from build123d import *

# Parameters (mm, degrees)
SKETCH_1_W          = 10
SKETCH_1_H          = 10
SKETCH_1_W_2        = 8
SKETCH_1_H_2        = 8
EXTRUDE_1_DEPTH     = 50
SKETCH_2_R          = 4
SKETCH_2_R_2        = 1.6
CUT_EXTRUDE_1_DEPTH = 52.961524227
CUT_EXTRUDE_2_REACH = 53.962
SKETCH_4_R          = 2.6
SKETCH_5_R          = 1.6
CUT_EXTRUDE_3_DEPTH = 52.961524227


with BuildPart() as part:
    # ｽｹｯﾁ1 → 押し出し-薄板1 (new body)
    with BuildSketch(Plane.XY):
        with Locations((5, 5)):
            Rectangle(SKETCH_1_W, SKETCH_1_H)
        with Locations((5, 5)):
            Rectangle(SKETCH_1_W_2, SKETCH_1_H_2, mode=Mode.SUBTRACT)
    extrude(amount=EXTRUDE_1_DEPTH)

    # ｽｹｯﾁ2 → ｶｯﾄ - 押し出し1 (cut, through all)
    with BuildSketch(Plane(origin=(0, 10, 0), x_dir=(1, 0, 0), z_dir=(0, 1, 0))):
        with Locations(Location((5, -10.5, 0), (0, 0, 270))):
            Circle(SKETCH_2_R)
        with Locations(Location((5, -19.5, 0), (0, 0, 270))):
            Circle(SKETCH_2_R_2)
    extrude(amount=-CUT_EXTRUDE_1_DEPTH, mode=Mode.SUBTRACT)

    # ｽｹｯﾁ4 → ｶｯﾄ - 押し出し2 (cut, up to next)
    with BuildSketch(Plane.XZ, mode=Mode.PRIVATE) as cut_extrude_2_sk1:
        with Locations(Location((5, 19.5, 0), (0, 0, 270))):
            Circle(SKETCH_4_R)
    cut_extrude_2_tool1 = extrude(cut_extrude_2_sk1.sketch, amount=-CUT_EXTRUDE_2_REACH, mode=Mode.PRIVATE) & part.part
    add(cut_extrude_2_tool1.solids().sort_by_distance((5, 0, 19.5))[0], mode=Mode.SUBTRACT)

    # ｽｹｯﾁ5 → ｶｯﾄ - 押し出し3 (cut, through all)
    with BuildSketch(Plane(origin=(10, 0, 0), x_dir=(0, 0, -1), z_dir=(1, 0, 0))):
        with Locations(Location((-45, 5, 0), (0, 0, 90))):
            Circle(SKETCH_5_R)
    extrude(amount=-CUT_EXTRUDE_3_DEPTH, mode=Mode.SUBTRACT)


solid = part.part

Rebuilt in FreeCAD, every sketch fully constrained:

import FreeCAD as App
import Part
import Sketcher
Q = App.Units.Quantity


def add_polygon(sketch, points):
    """Adds a closed chain of lines whose ends are joined by coincident constraints."""
    first, n = sketch.GeometryCount, len(points)
    for a, b in zip(points, points[1:] + points[:1]):
        sketch.addGeometry(Part.LineSegment(App.Vector(*a, 0), App.Vector(*b, 0)), False)
    for i in range(n):
        sketch.addConstraint(Sketcher.Constraint("Coincident", first + i, 2, first + (i + 1) % n, 1))

doc = App.newDocument("Part")
body = doc.addObject("PartDesign::Body", "Body")

# Sketch on XY plane
sketch1 = body.newObject("Sketcher::SketchObject", "Sketch")
sketch1.AttachmentSupport = (doc.getObject("XY_Plane"), [""])
sketch1.MapMode = "FlatFace"
add_polygon(sketch1, [(0, 10), (0, 0), (10, 0), (10, 10)])  # lines 0-3
add_polygon(sketch1, [(9, 1), (1, 1), (1, 9), (9, 9)])  # lines 4-7
sketch1.addConstraint(Sketcher.Constraint("Vertical", 0))
sketch1.addConstraint(Sketcher.Constraint("Horizontal", 1))
sketch1.addConstraint(Sketcher.Constraint("Vertical", 2))
sketch1.addConstraint(Sketcher.Constraint("Horizontal", 3))
sketch1.addConstraint(Sketcher.Constraint("Horizontal", 4))
sketch1.addConstraint(Sketcher.Constraint("Vertical", 5))
sketch1.addConstraint(Sketcher.Constraint("Horizontal", 6))
sketch1.addConstraint(Sketcher.Constraint("Vertical", 7))
sketch1.addConstraint(Sketcher.Constraint("Coincident", 0, 2, -1, 1))
sketch1.addConstraint(Sketcher.Constraint("Equal", 3, 0))
sketch1.addConstraint(Sketcher.Constraint("Equal", 6, 5))
sketch1.addConstraint(Sketcher.Constraint("DistanceX", 1, 1, 1, 2, Q("10 mm")))
sketch1.addConstraint(Sketcher.Constraint("DistanceX", 4, 2, 4, 1, Q("8 mm")))
sketch1.addConstraint(Sketcher.Constraint("DistanceX", -1, 1, 4, 2, Q("1 mm")))
sketch1.addConstraint(Sketcher.Constraint("DistanceY", -1, 1, 4, 2, Q("1 mm")))
pad1 = body.newObject("PartDesign::Pad", "Pad")
pad1.Profile = sketch1
pad1.Length = 50

# Sketch on XZ plane
sketch2 = body.newObject("Sketcher::SketchObject", "Sketch001")
sketch2.AttachmentSupport = (doc.getObject("XZ_Plane"), [""])
sketch2.MapMode = "FlatFace"
sketch2.AttachmentOffset = App.Placement(App.Vector(0, 0, -10), App.Rotation())
sketch2.addGeometry(Part.Circle(App.Vector(5, 10.5, 0), App.Vector(0, 0, 1), 4), False)
sketch2.addGeometry(Part.Circle(App.Vector(5, 19.5, 0), App.Vector(0, 0, 1), 1.6), False)
sketch2.addConstraint(Sketcher.Constraint("Vertical", 0, 3, 1, 3))
sketch2.addConstraint(Sketcher.Constraint("Diameter", 0, Q("8 mm")))
sketch2.addConstraint(Sketcher.Constraint("Diameter", 1, Q("3.2 mm")))
sketch2.addConstraint(Sketcher.Constraint("DistanceX", -1, 1, 0, 3, Q("5 mm")))
sketch2.addConstraint(Sketcher.Constraint("DistanceY", 0, 3, 1, 3, Q("9 mm")))
sketch2.addConstraint(Sketcher.Constraint("DistanceY", -1, 1, 0, 3, Q("10.5 mm")))
pocket1 = body.newObject("PartDesign::Pocket", "Pocket")
pocket1.Profile = sketch2
pocket1.Type = "ThroughAll"
pocket1.Reversed = True

# Sketch on XZ plane
sketch3 = body.newObject("Sketcher::SketchObject", "Sketch002")
sketch3.AttachmentSupport = (doc.getObject("XZ_Plane"), [""])
sketch3.MapMode = "FlatFace"
sketch3.addGeometry(Part.Circle(App.Vector(5, 19.5, 0), App.Vector(0, 0, 1), 2.6), False)
sketch3.addConstraint(Sketcher.Constraint("Diameter", 0, Q("5.2 mm")))
sketch3.addConstraint(Sketcher.Constraint("DistanceX", -1, 1, 0, 3, Q("5 mm")))
sketch3.addConstraint(Sketcher.Constraint("DistanceY", -1, 1, 0, 3, Q("19.5 mm")))
pocket2 = body.newObject("PartDesign::Pocket", "Pocket001")
pocket2.Profile = sketch3
pocket2.Length = 1

# Sketch on YZ plane
sketch4 = body.newObject("Sketcher::SketchObject", "Sketch003")
sketch4.AttachmentSupport = (doc.getObject("YZ_Plane"), [""])
sketch4.MapMode = "FlatFace"
sketch4.AttachmentOffset = App.Placement(App.Vector(0, 0, 10), App.Rotation())
sketch4.addGeometry(Part.Circle(App.Vector(5, 45, 0), App.Vector(0, 0, 1), 1.6), False)
sketch4.addConstraint(Sketcher.Constraint("Diameter", 0, Q("3.2 mm")))
sketch4.addConstraint(Sketcher.Constraint("DistanceX", -1, 1, 0, 3, Q("5 mm")))
sketch4.addConstraint(Sketcher.Constraint("DistanceY", -1, 1, 0, 3, Q("45 mm")))
pocket3 = body.newObject("PartDesign::Pocket", "Pocket002")
pocket3.Profile = sketch4
pocket3.Type = "ThroughAll"

doc.recompute()
